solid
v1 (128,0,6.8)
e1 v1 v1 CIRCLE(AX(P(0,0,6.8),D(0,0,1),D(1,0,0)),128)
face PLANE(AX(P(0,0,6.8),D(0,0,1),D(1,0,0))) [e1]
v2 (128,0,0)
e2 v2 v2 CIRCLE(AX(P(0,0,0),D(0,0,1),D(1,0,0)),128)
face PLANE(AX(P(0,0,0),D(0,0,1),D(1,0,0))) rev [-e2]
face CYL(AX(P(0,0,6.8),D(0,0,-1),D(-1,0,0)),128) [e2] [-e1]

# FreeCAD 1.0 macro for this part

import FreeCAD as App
import Part
import Sketcher
from FreeCAD import Vector
Q = App.Units.Quantity

doc = App.newDocument("Part")
body = doc.addObject("PartDesign::Body", "Body")

# Sketch on XY plane
sketch1 = body.newObject("Sketcher::SketchObject", "Sketch")
sketch1.AttachmentSupport = (doc.getObject("XY_Plane"), [""])
sketch1.MapMode = "FlatFace"
sketch1.addGeometry(Part.Circle(Vector(0, 0, 0), Vector(0, 0, 1), 128), False)
sketch1.addConstraint([
    Sketcher.Constraint("Coincident", 0, 3, -1, 1),
    Sketcher.Constraint("Diameter", 0, Q("256 mm")),
])
pad1 = body.newObject("PartDesign::Pad", "Pad")
pad1.Profile = sketch1
pad1.Length = 6.8

doc.recompute()
